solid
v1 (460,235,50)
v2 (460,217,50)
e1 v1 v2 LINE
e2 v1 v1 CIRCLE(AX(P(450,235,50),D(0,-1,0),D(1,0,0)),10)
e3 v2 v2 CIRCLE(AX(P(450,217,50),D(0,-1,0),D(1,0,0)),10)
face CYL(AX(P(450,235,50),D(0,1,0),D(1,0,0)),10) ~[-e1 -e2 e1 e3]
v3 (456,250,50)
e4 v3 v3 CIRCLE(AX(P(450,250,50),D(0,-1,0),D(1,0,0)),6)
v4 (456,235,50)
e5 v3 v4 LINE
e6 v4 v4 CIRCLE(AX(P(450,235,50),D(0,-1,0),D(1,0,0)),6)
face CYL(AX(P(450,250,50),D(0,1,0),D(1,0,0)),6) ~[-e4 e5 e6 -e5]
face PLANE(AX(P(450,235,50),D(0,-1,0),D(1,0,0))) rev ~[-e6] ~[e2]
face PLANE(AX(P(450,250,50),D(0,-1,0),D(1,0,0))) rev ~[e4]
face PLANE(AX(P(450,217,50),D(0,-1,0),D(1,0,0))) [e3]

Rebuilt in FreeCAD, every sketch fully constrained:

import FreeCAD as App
import Part
import Sketcher

V = App.Vector

doc = App.newDocument("Part")
body = doc.addObject("PartDesign::Body", "Body")

# Sketch on XY plane
sketch1 = body.newObject("Sketcher::SketchObject", "Sketch")
sketch1.AttachmentSupport = (doc.getObject("XY_Plane"), [""])
sketch1.MapMode = "FlatFace"
sketch1.addGeometry(Part.Circle(V(0, 0, 0), V(0, 0, 1), 6), False)
sketch1.addConstraint(Sketcher.Constraint("Coincident", 0, 3, -1, 1))
sketch1.addConstraint(Sketcher.Constraint("Diameter", 0, 12.0))
pad1 = body.newObject("PartDesign::Pad", "Pad")
pad1.Profile = sketch1
pad1.Length = 15
body2 = doc.addObject("PartDesign::Body", "Body001")
doc.recompute()

body.Placement = App.Placement(V(0, 0, 0), App.Rotation(V(1, 0, 0), 90))
boolean = body2.newObject("PartDesign::Boolean", "Boolean")
boolean.Type = "Fuse"
boolean.addObjects([body])
body3 = doc.addObject("PartDesign::Body", "Body002")
doc.recompute()

body2.Placement = App.Placement(V(450, 250, 50), App.Rotation(V(0, 0, 1), 0))
boolean2 = body3.newObject("PartDesign::Boolean", "Boolean001")
boolean2.Type = "Fuse"
boolean2.addObjects([body2])
body4 = doc.addObject("PartDesign::Body", "Body003")

# Sketch on XY plane
sketch2 = body4.newObject("Sketcher::SketchObject", "Sketch001")
sketch2.AttachmentSupport = (doc.getObject("XY_Plane003"), [""])
sketch2.MapMode = "FlatFace"
sketch2.addGeometry(Part.Circle(V(0, 0, 0), V(0, 0, 1), 10), False)
sketch2.addConstraint(Sketcher.Constraint("Coincident", 0, 3, -1, 1))
sketch2.addConstraint(Sketcher.Constraint("Diameter", 0, 20.0))
pad2 = body4.newObject("PartDesign::Pad", "Pad001")
pad2.Profile = sketch2
pad2.Length = 18
body5 = doc.addObject("PartDesign::Body", "Body004")
doc.recompute()

body4.Placement = App.Placement(V(0, 0, 0), App.Rotation(V(1, 0, 0), 90))
boolean3 = body5.newObject("PartDesign::Boolean", "Boolean002")
boolean3.Type = "Fuse"
boolean3.addObjects([body4])
body6 = doc.addObject("PartDesign::Body", "Body005")
doc.recompute()

body5.Placement = App.Placement(V(450, 235, 50), App.Rotation(V(0, 0, 1), 0))
boolean4 = body6.newObject("PartDesign::Boolean", "Boolean003")
boolean4.Type = "Fuse"
boolean4.addObjects([body5])
doc.recompute()

boolean5 = body6.newObject("PartDesign::Boolean", "Boolean004")
boolean5.Type = "Fuse"
boolean5.addObjects([body3])

doc.recompute()
